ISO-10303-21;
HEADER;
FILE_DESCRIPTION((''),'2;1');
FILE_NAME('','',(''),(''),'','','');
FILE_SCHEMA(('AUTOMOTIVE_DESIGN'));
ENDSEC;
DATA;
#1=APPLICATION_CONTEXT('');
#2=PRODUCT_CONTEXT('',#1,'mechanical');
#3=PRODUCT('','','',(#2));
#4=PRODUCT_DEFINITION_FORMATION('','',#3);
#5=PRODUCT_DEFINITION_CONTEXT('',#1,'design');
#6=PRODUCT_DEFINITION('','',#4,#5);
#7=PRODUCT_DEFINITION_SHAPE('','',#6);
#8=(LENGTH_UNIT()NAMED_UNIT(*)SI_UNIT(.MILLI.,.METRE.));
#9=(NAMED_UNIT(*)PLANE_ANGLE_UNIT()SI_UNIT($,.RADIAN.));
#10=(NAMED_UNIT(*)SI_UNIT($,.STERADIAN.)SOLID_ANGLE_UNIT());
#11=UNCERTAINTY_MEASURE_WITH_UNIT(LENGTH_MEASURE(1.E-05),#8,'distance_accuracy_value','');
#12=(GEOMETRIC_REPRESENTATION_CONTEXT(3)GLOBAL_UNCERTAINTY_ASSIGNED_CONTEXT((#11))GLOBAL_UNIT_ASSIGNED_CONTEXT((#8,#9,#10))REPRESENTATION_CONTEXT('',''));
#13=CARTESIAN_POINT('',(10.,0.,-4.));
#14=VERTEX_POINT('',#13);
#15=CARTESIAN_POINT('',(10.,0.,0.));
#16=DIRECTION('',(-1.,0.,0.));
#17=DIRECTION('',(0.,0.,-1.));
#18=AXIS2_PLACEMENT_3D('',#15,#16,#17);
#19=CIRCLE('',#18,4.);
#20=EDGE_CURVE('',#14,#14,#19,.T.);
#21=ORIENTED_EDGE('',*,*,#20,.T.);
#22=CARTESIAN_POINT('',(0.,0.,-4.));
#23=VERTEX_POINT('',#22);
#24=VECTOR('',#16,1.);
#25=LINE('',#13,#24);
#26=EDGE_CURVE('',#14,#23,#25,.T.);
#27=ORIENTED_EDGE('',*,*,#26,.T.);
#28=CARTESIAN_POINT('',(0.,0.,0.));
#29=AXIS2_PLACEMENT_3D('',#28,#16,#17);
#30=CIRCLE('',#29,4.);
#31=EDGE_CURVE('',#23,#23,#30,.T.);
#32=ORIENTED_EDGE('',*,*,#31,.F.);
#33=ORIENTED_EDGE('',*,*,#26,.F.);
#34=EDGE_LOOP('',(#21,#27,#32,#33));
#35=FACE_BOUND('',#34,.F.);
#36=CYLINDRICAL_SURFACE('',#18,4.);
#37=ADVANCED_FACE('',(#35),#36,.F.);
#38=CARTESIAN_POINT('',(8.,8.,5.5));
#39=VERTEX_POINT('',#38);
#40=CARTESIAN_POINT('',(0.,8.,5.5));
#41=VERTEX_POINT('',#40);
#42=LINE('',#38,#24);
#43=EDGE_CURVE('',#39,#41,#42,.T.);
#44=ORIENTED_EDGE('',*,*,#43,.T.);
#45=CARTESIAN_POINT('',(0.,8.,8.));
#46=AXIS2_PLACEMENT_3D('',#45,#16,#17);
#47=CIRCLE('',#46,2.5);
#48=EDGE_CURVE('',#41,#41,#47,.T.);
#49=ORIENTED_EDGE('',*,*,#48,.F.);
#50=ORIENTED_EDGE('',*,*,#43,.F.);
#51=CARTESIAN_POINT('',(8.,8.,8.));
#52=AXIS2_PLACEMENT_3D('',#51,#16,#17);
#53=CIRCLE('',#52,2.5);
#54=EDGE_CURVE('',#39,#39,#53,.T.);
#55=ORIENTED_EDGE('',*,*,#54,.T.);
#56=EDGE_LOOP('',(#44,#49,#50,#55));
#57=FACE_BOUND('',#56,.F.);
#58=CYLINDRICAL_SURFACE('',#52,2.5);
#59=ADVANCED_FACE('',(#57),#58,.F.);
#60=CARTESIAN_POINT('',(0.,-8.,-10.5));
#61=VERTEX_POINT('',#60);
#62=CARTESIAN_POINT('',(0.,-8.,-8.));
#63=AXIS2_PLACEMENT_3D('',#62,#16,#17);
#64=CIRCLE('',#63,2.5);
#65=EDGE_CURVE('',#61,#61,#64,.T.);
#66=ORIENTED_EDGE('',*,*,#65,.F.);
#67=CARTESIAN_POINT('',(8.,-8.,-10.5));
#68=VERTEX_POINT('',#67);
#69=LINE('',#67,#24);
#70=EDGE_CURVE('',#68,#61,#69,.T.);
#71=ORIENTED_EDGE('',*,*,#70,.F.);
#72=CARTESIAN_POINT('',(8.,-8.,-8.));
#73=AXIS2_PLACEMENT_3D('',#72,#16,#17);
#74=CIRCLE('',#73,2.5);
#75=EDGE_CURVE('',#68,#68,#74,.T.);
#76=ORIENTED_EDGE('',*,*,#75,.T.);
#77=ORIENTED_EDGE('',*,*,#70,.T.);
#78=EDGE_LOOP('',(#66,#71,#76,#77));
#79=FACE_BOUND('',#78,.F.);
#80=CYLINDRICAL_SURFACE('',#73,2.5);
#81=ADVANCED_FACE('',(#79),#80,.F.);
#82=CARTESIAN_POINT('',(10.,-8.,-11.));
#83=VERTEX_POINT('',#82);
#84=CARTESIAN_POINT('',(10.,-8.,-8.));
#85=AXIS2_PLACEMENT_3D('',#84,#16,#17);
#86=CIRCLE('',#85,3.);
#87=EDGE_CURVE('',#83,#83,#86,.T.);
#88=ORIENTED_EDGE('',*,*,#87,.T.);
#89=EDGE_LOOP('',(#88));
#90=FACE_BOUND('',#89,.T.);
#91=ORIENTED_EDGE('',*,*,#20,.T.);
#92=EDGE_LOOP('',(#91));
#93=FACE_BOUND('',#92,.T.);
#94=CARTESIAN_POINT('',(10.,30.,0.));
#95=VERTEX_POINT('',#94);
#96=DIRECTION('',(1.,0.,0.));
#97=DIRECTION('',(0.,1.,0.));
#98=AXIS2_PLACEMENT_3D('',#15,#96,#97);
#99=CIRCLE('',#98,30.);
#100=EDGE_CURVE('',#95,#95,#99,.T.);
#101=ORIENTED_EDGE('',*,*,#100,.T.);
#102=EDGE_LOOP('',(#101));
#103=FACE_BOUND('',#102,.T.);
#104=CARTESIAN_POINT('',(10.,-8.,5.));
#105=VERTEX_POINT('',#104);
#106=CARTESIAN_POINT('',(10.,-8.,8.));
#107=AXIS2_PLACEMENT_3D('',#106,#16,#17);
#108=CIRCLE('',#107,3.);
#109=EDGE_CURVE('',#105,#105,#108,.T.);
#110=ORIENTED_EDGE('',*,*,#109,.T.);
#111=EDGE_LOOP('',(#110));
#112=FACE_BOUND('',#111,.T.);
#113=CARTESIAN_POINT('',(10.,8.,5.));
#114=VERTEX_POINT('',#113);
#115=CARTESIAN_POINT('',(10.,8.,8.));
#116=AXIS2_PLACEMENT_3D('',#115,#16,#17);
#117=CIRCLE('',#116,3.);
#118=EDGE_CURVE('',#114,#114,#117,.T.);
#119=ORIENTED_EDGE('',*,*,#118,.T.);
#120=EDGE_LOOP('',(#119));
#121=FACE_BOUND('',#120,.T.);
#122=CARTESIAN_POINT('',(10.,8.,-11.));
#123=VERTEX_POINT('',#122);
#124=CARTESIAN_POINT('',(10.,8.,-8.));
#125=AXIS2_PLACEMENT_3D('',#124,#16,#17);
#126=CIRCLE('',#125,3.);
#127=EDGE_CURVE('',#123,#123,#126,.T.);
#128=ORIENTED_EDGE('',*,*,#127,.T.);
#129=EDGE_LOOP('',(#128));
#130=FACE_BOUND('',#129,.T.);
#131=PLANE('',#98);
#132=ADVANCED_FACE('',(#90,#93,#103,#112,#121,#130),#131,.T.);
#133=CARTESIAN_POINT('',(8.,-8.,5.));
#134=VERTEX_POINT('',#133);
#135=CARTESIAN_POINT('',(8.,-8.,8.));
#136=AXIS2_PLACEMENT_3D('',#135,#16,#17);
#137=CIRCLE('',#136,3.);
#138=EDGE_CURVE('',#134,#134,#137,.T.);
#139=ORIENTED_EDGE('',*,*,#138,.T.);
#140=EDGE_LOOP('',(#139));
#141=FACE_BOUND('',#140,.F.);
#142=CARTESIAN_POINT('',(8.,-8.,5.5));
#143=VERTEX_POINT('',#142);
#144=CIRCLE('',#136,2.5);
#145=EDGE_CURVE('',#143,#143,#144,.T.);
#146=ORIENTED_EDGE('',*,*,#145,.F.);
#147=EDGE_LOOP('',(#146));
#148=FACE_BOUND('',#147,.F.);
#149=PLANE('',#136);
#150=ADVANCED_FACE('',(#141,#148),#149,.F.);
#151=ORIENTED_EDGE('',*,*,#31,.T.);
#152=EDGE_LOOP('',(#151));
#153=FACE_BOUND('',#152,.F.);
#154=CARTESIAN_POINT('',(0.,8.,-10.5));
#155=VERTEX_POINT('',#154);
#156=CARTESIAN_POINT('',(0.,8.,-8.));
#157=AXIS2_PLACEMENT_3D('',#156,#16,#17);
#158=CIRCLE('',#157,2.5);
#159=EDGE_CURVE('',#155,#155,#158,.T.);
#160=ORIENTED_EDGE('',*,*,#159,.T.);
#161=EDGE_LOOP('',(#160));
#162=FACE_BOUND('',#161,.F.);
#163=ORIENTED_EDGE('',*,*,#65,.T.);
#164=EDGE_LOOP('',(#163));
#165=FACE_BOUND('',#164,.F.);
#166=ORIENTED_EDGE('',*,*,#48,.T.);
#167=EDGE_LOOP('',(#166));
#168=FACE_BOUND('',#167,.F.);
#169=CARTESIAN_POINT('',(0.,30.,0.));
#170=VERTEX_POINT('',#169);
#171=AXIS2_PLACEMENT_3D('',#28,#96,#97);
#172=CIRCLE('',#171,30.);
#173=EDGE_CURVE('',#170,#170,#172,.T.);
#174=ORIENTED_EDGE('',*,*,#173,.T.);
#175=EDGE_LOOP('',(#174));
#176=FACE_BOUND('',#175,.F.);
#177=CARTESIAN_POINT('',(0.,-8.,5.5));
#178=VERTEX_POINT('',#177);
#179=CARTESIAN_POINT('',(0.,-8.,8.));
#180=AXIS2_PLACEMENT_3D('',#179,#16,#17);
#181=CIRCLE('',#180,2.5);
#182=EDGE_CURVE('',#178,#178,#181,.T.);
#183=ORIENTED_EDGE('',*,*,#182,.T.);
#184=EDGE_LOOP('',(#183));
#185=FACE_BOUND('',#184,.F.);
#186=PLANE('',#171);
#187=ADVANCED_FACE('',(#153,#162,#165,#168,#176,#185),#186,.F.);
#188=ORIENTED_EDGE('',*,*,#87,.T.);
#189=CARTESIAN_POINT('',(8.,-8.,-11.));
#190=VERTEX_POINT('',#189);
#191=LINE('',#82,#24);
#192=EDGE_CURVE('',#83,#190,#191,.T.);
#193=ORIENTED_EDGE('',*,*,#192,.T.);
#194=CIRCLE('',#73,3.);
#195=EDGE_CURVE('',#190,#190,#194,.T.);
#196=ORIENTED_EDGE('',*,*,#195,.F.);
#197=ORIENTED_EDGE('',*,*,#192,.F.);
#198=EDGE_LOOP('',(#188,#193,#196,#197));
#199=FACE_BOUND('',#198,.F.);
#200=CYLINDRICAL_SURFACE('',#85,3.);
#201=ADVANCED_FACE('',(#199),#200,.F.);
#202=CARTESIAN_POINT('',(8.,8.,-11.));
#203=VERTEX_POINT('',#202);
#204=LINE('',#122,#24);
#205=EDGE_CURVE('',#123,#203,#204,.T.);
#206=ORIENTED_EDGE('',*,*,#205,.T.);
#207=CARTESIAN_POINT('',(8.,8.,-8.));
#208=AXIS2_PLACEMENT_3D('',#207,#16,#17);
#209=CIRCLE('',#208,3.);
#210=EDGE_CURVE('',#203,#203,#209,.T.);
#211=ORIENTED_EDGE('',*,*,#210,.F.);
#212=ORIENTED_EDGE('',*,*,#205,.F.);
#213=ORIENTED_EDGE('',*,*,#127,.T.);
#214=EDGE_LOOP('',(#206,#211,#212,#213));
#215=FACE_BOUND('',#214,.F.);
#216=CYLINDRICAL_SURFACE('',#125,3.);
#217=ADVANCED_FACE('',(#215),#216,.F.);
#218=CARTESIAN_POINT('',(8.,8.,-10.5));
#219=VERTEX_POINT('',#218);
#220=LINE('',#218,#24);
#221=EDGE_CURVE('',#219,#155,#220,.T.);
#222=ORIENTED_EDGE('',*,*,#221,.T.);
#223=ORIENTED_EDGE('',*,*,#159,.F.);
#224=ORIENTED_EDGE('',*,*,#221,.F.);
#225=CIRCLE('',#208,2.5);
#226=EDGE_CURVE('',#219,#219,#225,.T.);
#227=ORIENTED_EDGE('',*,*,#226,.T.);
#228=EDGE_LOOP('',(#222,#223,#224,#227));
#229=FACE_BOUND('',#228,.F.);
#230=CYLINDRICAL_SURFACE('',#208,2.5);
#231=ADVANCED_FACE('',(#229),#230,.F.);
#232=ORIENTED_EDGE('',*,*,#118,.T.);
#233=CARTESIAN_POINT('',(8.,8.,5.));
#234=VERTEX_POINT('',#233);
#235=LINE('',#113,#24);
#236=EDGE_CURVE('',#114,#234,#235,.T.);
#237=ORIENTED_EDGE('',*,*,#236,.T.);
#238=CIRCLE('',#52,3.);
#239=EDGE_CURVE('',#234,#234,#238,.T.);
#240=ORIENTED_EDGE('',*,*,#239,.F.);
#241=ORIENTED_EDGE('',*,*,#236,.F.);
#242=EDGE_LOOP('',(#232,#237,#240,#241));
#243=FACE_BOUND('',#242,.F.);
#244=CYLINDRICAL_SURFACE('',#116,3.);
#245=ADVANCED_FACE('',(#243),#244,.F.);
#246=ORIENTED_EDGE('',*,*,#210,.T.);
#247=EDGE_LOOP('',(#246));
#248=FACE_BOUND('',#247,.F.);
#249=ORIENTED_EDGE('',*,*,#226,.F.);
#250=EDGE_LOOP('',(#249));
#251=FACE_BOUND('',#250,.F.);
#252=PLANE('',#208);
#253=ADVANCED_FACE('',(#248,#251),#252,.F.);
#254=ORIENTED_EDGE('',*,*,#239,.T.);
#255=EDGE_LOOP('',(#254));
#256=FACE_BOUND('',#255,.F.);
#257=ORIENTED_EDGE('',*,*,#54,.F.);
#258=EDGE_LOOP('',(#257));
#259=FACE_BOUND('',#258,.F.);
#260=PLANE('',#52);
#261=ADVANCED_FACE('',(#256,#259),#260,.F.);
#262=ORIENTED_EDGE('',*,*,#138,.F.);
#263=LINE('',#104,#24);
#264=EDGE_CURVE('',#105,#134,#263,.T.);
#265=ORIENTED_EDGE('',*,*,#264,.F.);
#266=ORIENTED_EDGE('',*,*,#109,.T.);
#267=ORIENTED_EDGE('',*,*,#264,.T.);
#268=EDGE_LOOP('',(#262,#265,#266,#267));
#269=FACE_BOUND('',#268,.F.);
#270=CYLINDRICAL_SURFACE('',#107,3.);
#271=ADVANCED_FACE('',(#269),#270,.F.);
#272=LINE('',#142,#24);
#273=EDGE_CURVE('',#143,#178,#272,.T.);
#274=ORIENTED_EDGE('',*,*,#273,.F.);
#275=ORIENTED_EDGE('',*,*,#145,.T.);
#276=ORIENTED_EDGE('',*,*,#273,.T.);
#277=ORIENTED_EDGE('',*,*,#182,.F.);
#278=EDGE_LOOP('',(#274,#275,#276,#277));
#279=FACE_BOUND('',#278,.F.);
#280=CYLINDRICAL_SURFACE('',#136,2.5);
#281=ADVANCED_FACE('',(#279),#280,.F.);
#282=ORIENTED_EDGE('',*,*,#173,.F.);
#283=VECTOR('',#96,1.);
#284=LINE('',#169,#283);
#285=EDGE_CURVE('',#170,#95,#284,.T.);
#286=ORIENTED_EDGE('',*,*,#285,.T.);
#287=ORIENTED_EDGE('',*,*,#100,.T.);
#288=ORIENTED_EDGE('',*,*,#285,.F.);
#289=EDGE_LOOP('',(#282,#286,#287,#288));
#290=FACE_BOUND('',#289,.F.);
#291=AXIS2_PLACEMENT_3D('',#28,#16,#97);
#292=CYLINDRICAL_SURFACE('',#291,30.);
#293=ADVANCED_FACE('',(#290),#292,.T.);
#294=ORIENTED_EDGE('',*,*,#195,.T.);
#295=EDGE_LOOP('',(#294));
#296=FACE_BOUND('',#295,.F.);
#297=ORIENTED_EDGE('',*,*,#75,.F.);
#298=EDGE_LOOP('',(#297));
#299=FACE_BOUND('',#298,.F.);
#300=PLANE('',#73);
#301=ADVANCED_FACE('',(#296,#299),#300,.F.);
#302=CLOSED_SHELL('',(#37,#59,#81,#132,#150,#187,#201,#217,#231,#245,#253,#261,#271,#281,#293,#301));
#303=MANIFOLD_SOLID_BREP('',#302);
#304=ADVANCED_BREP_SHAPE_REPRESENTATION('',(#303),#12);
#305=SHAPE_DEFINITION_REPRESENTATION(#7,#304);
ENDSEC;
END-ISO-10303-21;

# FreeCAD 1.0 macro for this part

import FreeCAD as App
import Part
import Sketcher

doc = App.newDocument("Part")
body = doc.addObject("PartDesign::Body", "Body")

sketch1 = body.newObject("Sketcher::SketchObject", "Sketch")
sketch1.AttachmentSupport = (doc.getObject("YZ_Plane"), [""])
sketch1.MapMode = "FlatFace"
sketch1.addGeometry(Part.Circle(App.Vector(0, 0, 0), App.Vector(0, 0, 1), 30), False)
sketch1.addConstraint(Sketcher.Constraint("Coincident", 0, 3, -1, 1))
sketch1.addConstraint(Sketcher.Constraint("Diameter", 0, 60.0))
pad1 = body.newObject("PartDesign::Pad", "Pad")
pad1.Profile = sketch1
pad1.Length = 10

sketch2 = body.newObject("Sketcher::SketchObject", "Sketch001")
sketch2.AttachmentSupport = (doc.getObject("YZ_Plane"), [""])
sketch2.MapMode = "FlatFace"
sketch2.AttachmentOffset = App.Placement(App.Vector(0, 0, 10), App.Rotation())
sketch2.addGeometry(Part.Circle(App.Vector(8, 8, 0), App.Vector(0, 0, 1), 2.5), False)
sketch2.addGeometry(Part.Circle(App.Vector(8, -8, 0), App.Vector(0, 0, 1), 2.5), False)
sketch2.addGeometry(Part.Circle(App.Vector(-8, -8, 0), App.Vector(0, 0, 1), 2.5), False)
sketch2.addGeometry(Part.Circle(App.Vector(-8, 8, 0), App.Vector(0, 0, 1), 2.5), False)
sketch2.addConstraint(Sketcher.Constraint("Equal", 0, 1))
sketch2.addConstraint(Sketcher.Constraint("Equal", 1, 2))
sketch2.addConstraint(Sketcher.Constraint("Equal", 2, 3))
sketch2.addConstraint(Sketcher.Constraint("Symmetric", 0, 3, 2, 3, -1, 1))
sketch2.addConstraint(Sketcher.Constraint("Symmetric", 1, 3, 3, 3, -1, 1))
sketch2.addConstraint(Sketcher.Constraint("Symmetric", 1, 3, 2, 3, -2))
sketch2.addConstraint(Sketcher.Constraint("Diameter", 0, 5.0))
sketch2.addConstraint(Sketcher.Constraint("DistanceX", -1, 1, 0, 3, 8.0))
sketch2.addConstraint(Sketcher.Constraint("DistanceY", -1, 1, 0, 3, 8.0))
doc.recompute()
hole = body.newObject("PartDesign::Hole", "Hole")
hole.Profile = sketch2
hole.ThreadType = "None"
hole.Diameter = 5
hole.DepthType = "ThroughAll"
hole.HoleCutType = "Counterbore"
hole.HoleCutDiameter = 6
hole.HoleCutDepth = 2

sketch3 = body.newObject("Sketcher::SketchObject", "Sketch002")
sketch3.AttachmentSupport = (doc.getObject("YZ_Plane"), [""])
sketch3.MapMode = "FlatFace"
sketch3.AttachmentOffset = App.Placement(App.Vector(0, 0, 10), App.Rotation())
sketch3.addGeometry(Part.Circle(App.Vector(0, 0, 0), App.Vector(0, 0, 1), 4), False)
sketch3.addConstraint(Sketcher.Constraint("Coincident", 0, 3, -1, 1))
sketch3.addConstraint(Sketcher.Constraint("Diameter", 0, 8.0))
doc.recompute()
hole2 = body.newObject("PartDesign::Hole", "Hole001")
hole2.Profile = sketch3
hole2.ThreadType = "None"
hole2.Diameter = 8
hole2.DepthType = "ThroughAll"

doc.recompute()
